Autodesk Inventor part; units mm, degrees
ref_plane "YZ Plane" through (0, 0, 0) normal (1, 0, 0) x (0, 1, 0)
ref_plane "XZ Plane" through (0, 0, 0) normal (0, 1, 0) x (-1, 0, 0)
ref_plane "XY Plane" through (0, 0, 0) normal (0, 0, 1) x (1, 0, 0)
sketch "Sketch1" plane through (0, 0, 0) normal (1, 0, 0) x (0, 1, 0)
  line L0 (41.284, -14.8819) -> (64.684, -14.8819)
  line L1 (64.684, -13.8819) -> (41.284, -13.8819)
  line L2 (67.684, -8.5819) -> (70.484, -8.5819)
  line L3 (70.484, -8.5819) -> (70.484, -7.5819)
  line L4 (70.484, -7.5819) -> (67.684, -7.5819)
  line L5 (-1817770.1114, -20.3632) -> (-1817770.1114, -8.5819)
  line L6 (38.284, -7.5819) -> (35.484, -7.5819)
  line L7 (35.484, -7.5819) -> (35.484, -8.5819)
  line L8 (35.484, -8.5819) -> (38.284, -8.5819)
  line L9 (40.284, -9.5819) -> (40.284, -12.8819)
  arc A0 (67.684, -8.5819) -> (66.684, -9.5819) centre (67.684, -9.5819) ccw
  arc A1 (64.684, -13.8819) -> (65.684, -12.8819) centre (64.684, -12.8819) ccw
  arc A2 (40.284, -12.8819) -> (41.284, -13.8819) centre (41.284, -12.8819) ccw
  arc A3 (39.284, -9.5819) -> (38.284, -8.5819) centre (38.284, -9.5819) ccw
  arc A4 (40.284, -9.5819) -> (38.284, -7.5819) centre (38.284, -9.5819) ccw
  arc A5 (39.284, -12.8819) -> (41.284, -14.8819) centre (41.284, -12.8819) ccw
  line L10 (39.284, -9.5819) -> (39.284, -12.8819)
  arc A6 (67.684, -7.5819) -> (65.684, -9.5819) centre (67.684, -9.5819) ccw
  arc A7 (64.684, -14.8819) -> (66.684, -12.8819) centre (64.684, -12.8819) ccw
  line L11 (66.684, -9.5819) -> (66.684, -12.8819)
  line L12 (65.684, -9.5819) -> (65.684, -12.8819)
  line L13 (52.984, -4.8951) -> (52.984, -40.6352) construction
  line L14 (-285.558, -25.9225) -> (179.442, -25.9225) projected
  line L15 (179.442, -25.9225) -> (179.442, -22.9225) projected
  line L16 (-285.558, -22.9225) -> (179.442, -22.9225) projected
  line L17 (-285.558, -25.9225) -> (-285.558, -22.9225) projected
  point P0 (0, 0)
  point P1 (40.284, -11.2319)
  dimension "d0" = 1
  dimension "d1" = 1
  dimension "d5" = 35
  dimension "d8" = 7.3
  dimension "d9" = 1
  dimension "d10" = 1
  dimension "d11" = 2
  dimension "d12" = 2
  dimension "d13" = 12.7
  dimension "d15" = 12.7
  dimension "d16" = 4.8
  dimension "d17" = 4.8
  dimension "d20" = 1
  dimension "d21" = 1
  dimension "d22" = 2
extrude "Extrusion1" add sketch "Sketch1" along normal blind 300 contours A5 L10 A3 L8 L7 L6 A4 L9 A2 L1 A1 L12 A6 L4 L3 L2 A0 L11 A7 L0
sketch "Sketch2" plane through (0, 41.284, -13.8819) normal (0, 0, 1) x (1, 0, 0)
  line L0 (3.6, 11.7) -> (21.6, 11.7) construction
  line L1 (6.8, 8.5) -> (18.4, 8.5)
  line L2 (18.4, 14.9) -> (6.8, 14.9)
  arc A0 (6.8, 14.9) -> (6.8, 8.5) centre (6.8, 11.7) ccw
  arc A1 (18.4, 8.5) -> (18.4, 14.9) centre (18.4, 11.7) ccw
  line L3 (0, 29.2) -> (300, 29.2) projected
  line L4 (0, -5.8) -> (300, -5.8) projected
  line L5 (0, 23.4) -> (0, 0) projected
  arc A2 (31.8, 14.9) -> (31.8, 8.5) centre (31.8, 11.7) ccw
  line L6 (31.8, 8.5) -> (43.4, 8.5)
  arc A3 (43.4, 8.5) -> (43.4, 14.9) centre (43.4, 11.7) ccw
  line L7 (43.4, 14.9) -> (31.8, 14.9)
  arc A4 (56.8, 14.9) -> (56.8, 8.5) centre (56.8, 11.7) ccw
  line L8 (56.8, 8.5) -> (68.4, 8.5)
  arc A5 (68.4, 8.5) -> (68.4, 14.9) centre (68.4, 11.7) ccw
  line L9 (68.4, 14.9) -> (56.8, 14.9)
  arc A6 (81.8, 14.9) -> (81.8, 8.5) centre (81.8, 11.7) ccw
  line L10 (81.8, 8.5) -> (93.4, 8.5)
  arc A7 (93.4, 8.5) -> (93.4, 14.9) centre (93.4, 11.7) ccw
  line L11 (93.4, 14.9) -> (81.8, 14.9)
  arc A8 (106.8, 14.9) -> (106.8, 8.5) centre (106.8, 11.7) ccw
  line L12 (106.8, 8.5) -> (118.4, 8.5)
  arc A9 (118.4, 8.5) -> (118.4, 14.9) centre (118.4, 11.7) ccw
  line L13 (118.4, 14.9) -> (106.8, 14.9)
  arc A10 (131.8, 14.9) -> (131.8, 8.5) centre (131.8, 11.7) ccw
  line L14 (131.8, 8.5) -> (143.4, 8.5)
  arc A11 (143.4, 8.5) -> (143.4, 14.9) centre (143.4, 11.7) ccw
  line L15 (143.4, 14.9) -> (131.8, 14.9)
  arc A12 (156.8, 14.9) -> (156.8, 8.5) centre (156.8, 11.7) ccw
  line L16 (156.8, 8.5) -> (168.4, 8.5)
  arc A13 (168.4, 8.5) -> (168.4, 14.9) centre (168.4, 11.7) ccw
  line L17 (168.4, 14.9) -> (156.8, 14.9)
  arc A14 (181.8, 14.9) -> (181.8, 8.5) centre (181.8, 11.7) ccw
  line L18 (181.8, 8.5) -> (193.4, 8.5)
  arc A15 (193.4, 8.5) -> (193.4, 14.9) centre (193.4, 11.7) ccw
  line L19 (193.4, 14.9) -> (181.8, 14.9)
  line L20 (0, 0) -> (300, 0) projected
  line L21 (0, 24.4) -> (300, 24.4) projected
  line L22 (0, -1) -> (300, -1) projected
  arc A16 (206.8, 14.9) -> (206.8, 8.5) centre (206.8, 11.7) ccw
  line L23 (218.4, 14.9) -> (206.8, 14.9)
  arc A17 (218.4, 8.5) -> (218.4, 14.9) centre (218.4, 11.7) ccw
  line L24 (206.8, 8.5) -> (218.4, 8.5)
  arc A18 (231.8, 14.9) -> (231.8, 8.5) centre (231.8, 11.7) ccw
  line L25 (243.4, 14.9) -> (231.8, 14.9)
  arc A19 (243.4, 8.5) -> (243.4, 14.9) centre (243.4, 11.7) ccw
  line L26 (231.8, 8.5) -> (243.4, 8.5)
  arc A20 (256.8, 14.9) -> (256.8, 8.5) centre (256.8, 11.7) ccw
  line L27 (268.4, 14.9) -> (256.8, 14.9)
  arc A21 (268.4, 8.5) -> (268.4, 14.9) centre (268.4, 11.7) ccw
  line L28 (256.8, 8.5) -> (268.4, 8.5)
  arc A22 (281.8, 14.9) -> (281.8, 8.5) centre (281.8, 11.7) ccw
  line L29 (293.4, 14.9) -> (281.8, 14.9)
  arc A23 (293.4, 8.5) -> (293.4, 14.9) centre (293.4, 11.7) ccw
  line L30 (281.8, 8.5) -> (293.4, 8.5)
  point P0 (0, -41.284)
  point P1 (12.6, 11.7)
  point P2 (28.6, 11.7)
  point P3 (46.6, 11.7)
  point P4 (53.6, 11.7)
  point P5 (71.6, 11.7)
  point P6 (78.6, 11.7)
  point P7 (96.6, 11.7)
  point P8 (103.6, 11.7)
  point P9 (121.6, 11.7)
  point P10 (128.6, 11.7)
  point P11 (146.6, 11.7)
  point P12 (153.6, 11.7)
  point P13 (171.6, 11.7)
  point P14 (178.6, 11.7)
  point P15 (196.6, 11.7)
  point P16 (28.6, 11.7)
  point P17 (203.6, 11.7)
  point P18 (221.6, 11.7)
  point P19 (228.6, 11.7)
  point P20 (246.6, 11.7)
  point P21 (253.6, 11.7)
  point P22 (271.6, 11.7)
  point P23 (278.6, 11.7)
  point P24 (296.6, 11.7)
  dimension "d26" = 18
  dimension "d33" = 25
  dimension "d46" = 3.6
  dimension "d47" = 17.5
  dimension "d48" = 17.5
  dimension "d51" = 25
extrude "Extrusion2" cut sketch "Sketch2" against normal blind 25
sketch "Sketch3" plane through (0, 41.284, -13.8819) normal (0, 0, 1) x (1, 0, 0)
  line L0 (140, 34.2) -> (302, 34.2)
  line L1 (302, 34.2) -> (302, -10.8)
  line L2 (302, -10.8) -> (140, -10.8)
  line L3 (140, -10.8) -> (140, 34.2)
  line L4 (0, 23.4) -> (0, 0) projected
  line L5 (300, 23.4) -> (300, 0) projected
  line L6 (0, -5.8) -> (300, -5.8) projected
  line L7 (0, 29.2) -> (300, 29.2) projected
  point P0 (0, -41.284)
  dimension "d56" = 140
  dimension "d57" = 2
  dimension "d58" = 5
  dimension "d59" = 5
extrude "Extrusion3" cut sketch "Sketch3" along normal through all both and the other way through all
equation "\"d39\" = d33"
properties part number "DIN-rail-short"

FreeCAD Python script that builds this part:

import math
import FreeCAD as App
import Part
import Sketcher
from FreeCAD import Vector
Q = App.Units.Quantity

doc = App.newDocument("Part")
params = doc.addObject("Spreadsheet::Sheet", "Params")
for row, (alias, value) in enumerate([
    ("sketch1_radius", "2 mm"),
    ("sketch1_radius2", "1 mm"),
    ("sketch1_width", "23.4 mm"),
    ("sketch1_height", "3.3 mm"),
    ("pad1_length", "300 mm"),
    ("sketch2_radius", "3.2 mm"),
    ("sketch2_width", "11.6 mm"),
    ("pocket1_length", "25 mm"),
    ("sketch3_width", "162 mm"),
    ("sketch3_height", "45 mm"),
], start=1):
    params.set(f"A{row}", alias)
    params.set(f"B{row}", "=" + value)
    params.setAlias(f"B{row}", alias)

body = doc.addObject("PartDesign::Body", "Body")

# Sketch on YZ plane
sketch1 = body.newObject("Sketcher::SketchObject", "Sketch")
sketch1.AttachmentSupport = (doc.getObject("YZ_Plane"), [""])
sketch1.MapMode = "FlatFace"
sketch1.addGeometry([
    Part.ArcOfCircle(Part.Circle(Vector(41.3, -12.9, 0), Vector(0, 0, 1), 2), math.radians(180), math.radians(270)),  # 0
    Part.LineSegment(Vector(41.3, -14.9, 0), Vector(64.7, -14.9, 0)),  # 1
    Part.ArcOfCircle(Part.Circle(Vector(64.7, -12.9, 0), Vector(0, 0, 1), 2), math.radians(-90), math.radians(0)),  # 2
    Part.LineSegment(Vector(66.7, -12.9, 0), Vector(66.7, -9.6, 0)),  # 3
    Part.ArcOfCircle(Part.Circle(Vector(67.7, -9.6, 0), Vector(0, 0, 1), 1), math.radians(90), math.radians(180)),  # 4
    Part.LineSegment(Vector(67.7, -8.6, 0), Vector(70.5, -8.6, 0)),  # 5
    Part.LineSegment(Vector(70.5, -8.6, 0), Vector(70.5, -7.6, 0)),  # 6
    Part.LineSegment(Vector(70.5, -7.6, 0), Vector(67.7, -7.6, 0)),  # 7
    Part.ArcOfCircle(Part.Circle(Vector(67.7, -9.6, 0), Vector(0, 0, 1), 2), math.radians(90), math.radians(180)),  # 8
    Part.LineSegment(Vector(65.7, -9.6, 0), Vector(65.7, -12.9, 0)),  # 9
    Part.ArcOfCircle(Part.Circle(Vector(64.7, -12.9, 0), Vector(0, 0, 1), 1), math.radians(-90), math.radians(0)),  # 10
    Part.LineSegment(Vector(64.7, -13.9, 0), Vector(41.3, -13.9, 0)),  # 11
    Part.ArcOfCircle(Part.Circle(Vector(41.3, -12.9, 0), Vector(0, 0, 1), 1), math.radians(180), math.radians(270)),  # 12
    Part.LineSegment(Vector(40.3, -12.9, 0), Vector(40.3, -9.6, 0)),  # 13
    Part.ArcOfCircle(Part.Circle(Vector(38.3, -9.6, 0), Vector(0, 0, 1), 2), math.radians(0), math.radians(90)),  # 14
    Part.LineSegment(Vector(38.3, -7.6, 0), Vector(35.5, -7.6, 0)),  # 15
    Part.LineSegment(Vector(35.5, -7.6, 0), Vector(35.5, -8.6, 0)),  # 16
    Part.LineSegment(Vector(35.5, -8.6, 0), Vector(38.3, -8.6, 0)),  # 17
    Part.ArcOfCircle(Part.Circle(Vector(38.3, -9.6, 0), Vector(0, 0, 1), 1), math.radians(0), math.radians(90)),  # 18
    Part.LineSegment(Vector(39.3, -9.6, 0), Vector(39.3, -12.9, 0)),  # 19
], False)
sketch1.addConstraint([
    Sketcher.Constraint("Tangent", 0, 2, 1, 1),
    Sketcher.Constraint("Tangent", 1, 2, 2, 1),
    Sketcher.Constraint("Tangent", 2, 2, 3, 1),
    Sketcher.Constraint("Tangent", 3, 2, 4, 2),
    Sketcher.Constraint("Tangent", 4, 1, 5, 1),
    Sketcher.Constraint("Coincident", 5, 2, 6, 1),
    Sketcher.Constraint("Coincident", 6, 2, 7, 1),
    Sketcher.Constraint("Tangent", 7, 2, 8, 1),
    Sketcher.Constraint("Tangent", 8, 2, 9, 1),
    Sketcher.Constraint("Tangent", 9, 2, 10, 2),
    Sketcher.Constraint("Tangent", 10, 1, 11, 1),
    Sketcher.Constraint("Tangent", 11, 2, 12, 2),
    Sketcher.Constraint("Tangent", 12, 1, 13, 1),
    Sketcher.Constraint("Tangent", 13, 2, 14, 1),
    Sketcher.Constraint("Tangent", 14, 2, 15, 1),
    Sketcher.Constraint("Coincident", 15, 2, 16, 1),
    Sketcher.Constraint("Coincident", 16, 2, 17, 1),
    Sketcher.Constraint("Tangent", 17, 2, 18, 2),
    Sketcher.Constraint("Tangent", 18, 1, 19, 1),
    Sketcher.Constraint("Tangent", 19, 2, 0, 1),
    Sketcher.Constraint("Horizontal", 1),
    Sketcher.Constraint("Vertical", 3),
    Sketcher.Constraint("Horizontal", 5),
    Sketcher.Constraint("Vertical", 6),
    Sketcher.Constraint("Horizontal", 7),
    Sketcher.Constraint("Vertical", 9),
    Sketcher.Constraint("Horizontal", 11),
    Sketcher.Constraint("Vertical", 13),
    Sketcher.Constraint("Horizontal", 15),
    Sketcher.Constraint("Vertical", 16),
    Sketcher.Constraint("Horizontal", 17),
    Sketcher.Constraint("Vertical", 19),
    Sketcher.Constraint("Coincident", 8, 3, 4, 3),
    Sketcher.Constraint("Coincident", 10, 3, 2, 3),
    Sketcher.Constraint("Coincident", 12, 3, 0, 3),
    Sketcher.Constraint("Coincident", 18, 3, 14, 3),
    Sketcher.Constraint("Equal", 0, 2),
    Sketcher.Constraint("Equal", 2, 8),
    Sketcher.Constraint("Equal", 8, 14),
    Sketcher.Constraint("Horizontal", 8, 3, 14, 3),
    Sketcher.Constraint("Equal", 7, 15),
    Sketcher.Constraint("Radius", 0, Q("2 mm")),
    Sketcher.Constraint("Radius", 4, Q("1 mm")),
    Sketcher.Constraint("DistanceX", 15, 2, 13, 2, Q("4.8 mm")),
    Sketcher.Constraint("DistanceX", 1, 1, 1, 2, Q("23.4 mm")),
    Sketcher.Constraint("DistanceY", 3, 1, 3, 2, Q("3.3 mm")),
    Sketcher.Constraint("DistanceX", -1, 1, 0, 3, Q("41.284 mm")),
    Sketcher.Constraint("DistanceY", 0, 3, -1, 1, Q("12.882 mm")),
])
sketch1.setExpression("Constraints[41]", "Params.sketch1_radius")
sketch1.setExpression("Constraints[42]", "Params.sketch1_radius2")
sketch1.setExpression("Constraints[44]", "Params.sketch1_width")
sketch1.setExpression("Constraints[45]", "Params.sketch1_height")
pad1 = body.newObject("PartDesign::Pad", "Pad")
pad1.Profile = sketch1
pad1.setExpression("Length", "Params.pad1_length")

# Sketch on XY plane
sketch2 = body.newObject("Sketcher::SketchObject", "Sketch001")
sketch2.AttachmentSupport = (doc.getObject("XY_Plane"), [""])
sketch2.MapMode = "FlatFace"
sketch2.AttachmentOffset = App.Placement(Vector(0, 0, -13.8819), App.Rotation())
sketch2.addGeometry([
    Part.ArcOfCircle(Part.Circle(Vector(6.8, 53, 0), Vector(0, 0, 1), 3.2), math.radians(90), math.radians(270)),  # 0
    Part.LineSegment(Vector(6.8, 49.8, 0), Vector(18.4, 49.8, 0)),  # 1
    Part.ArcOfCircle(Part.Circle(Vector(18.4, 53, 0), Vector(0, 0, 1), 3.2), math.radians(-90), math.radians(90)),  # 2
    Part.LineSegment(Vector(18.4, 56.2, 0), Vector(6.8, 56.2, 0)),  # 3
    Part.LineSegment(Vector(43.4, 56.2, 0), Vector(31.8, 56.2, 0)),  # 4
    Part.ArcOfCircle(Part.Circle(Vector(31.8, 53, 0), Vector(0, 0, 1), 3.2), math.radians(90), math.radians(270)),  # 5
    Part.LineSegment(Vector(31.8, 49.8, 0), Vector(43.4, 49.8, 0)),  # 6
    Part.ArcOfCircle(Part.Circle(Vector(43.4, 53, 0), Vector(0, 0, 1), 3.2), math.radians(-90), math.radians(90)),  # 7
    Part.LineSegment(Vector(68.4, 56.2, 0), Vector(56.8, 56.2, 0)),  # 8
    Part.ArcOfCircle(Part.Circle(Vector(56.8, 53, 0), Vector(0, 0, 1), 3.2), math.radians(90), math.radians(270)),  # 9
    Part.LineSegment(Vector(56.8, 49.8, 0), Vector(68.4, 49.8, 0)),  # 10
    Part.ArcOfCircle(Part.Circle(Vector(68.4, 53, 0), Vector(0, 0, 1), 3.2), math.radians(-90), math.radians(90)),  # 11
    Part.LineSegment(Vector(93.4, 56.2, 0), Vector(81.8, 56.2, 0)),  # 12
    Part.ArcOfCircle(Part.Circle(Vector(81.8, 53, 0), Vector(0, 0, 1), 3.2), math.radians(90), math.radians(270)),  # 13
    Part.LineSegment(Vector(81.8, 49.8, 0), Vector(93.4, 49.8, 0)),  # 14
    Part.ArcOfCircle(Part.Circle(Vector(93.4, 53, 0), Vector(0, 0, 1), 3.2), math.radians(-90), math.radians(90)),  # 15
    Part.LineSegment(Vector(118.4, 56.2, 0), Vector(106.8, 56.2, 0)),  # 16
    Part.ArcOfCircle(Part.Circle(Vector(106.8, 53, 0), Vector(0, 0, 1), 3.2), math.radians(90), math.radians(270)),  # 17
    Part.LineSegment(Vector(106.8, 49.8, 0), Vector(118.4, 49.8, 0)),  # 18
    Part.ArcOfCircle(Part.Circle(Vector(118.4, 53, 0), Vector(0, 0, 1), 3.2), math.radians(-90), math.radians(90)),  # 19
    Part.LineSegment(Vector(143.4, 56.2, 0), Vector(131.8, 56.2, 0)),  # 20
    Part.ArcOfCircle(Part.Circle(Vector(131.8, 53, 0), Vector(0, 0, 1), 3.2), math.radians(90), math.radians(270)),  # 21
    Part.LineSegment(Vector(131.8, 49.8, 0), Vector(143.4, 49.8, 0)),  # 22
    Part.ArcOfCircle(Part.Circle(Vector(143.4, 53, 0), Vector(0, 0, 1), 3.2), math.radians(-90), math.radians(90)),  # 23
    Part.LineSegment(Vector(168.4, 56.2, 0), Vector(156.8, 56.2, 0)),  # 24
    Part.ArcOfCircle(Part.Circle(Vector(156.8, 53, 0), Vector(0, 0, 1), 3.2), math.radians(90), math.radians(270)),  # 25
    Part.LineSegment(Vector(156.8, 49.8, 0), Vector(168.4, 49.8, 0)),  # 26
    Part.ArcOfCircle(Part.Circle(Vector(168.4, 53, 0), Vector(0, 0, 1), 3.2), math.radians(-90), math.radians(90)),  # 27
    Part.LineSegment(Vector(193.4, 56.2, 0), Vector(181.8, 56.2, 0)),  # 28
    Part.ArcOfCircle(Part.Circle(Vector(181.8, 53, 0), Vector(0, 0, 1), 3.2), math.radians(90), math.radians(270)),  # 29
    Part.LineSegment(Vector(181.8, 49.8, 0), Vector(193.4, 49.8, 0)),  # 30
    Part.ArcOfCircle(Part.Circle(Vector(193.4, 53, 0), Vector(0, 0, 1), 3.2), math.radians(-90), math.radians(90)),  # 31
    Part.LineSegment(Vector(218.4, 56.2, 0), Vector(206.8, 56.2, 0)),  # 32
    Part.ArcOfCircle(Part.Circle(Vector(206.8, 53, 0), Vector(0, 0, 1), 3.2), math.radians(90), math.radians(270)),  # 33
    Part.LineSegment(Vector(206.8, 49.8, 0), Vector(218.4, 49.8, 0)),  # 34
    Part.ArcOfCircle(Part.Circle(Vector(218.4, 53, 0), Vector(0, 0, 1), 3.2), math.radians(-90), math.radians(90)),  # 35
    Part.LineSegment(Vector(243.4, 56.2, 0), Vector(231.8, 56.2, 0)),  # 36
    Part.ArcOfCircle(Part.Circle(Vector(231.8, 53, 0), Vector(0, 0, 1), 3.2), math.radians(90), math.radians(270)),  # 37
    Part.LineSegment(Vector(231.8, 49.8, 0), Vector(243.4, 49.8, 0)),  # 38
    Part.ArcOfCircle(Part.Circle(Vector(243.4, 53, 0), Vector(0, 0, 1), 3.2), math.radians(-90), math.radians(90)),  # 39
    Part.LineSegment(Vector(268.4, 56.2, 0), Vector(256.8, 56.2, 0)),  # 40
    Part.ArcOfCircle(Part.Circle(Vector(256.8, 53, 0), Vector(0, 0, 1), 3.2), math.radians(90), math.radians(270)),  # 41
    Part.LineSegment(Vector(256.8, 49.8, 0), Vector(268.4, 49.8, 0)),  # 42
    Part.ArcOfCircle(Part.Circle(Vector(268.4, 53, 0), Vector(0, 0, 1), 3.2), math.radians(-90), math.radians(90)),  # 43
    Part.LineSegment(Vector(293.4, 56.2, 0), Vector(281.8, 56.2, 0)),  # 44
    Part.ArcOfCircle(Part.Circle(Vector(281.8, 53, 0), Vector(0, 0, 1), 3.2), math.radians(90), math.radians(270)),  # 45
    Part.LineSegment(Vector(281.8, 49.8, 0), Vector(293.4, 49.8, 0)),  # 46
    Part.ArcOfCircle(Part.Circle(Vector(293.4, 53, 0), Vector(0, 0, 1), 3.2), math.radians(-90), math.radians(90)),  # 47
], False)
sketch2.addConstraint([
    Sketcher.Constraint("Tangent", 0, 2, 1, 1),
    Sketcher.Constraint("Tangent", 1, 2, 2, 1),
    Sketcher.Constraint("Tangent", 2, 2, 3, 1),
    Sketcher.Constraint("Tangent", 3, 2, 0, 1),
    Sketcher.Constraint("Tangent", 4, 2, 5, 1),
    Sketcher.Constraint("Tangent", 5, 2, 6, 1),
    Sketcher.Constraint("Tangent", 6, 2, 7, 1),
    Sketcher.Constraint("Tangent", 7, 2, 4, 1),
    Sketcher.Constraint("Tangent", 8, 2, 9, 1),
    Sketcher.Constraint("Tangent", 9, 2, 10, 1),
    Sketcher.Constraint("Tangent", 10, 2, 11, 1),
    Sketcher.Constraint("Tangent", 11, 2, 8, 1),
    Sketcher.Constraint("Tangent", 12, 2, 13, 1),
    Sketcher.Constraint("Tangent", 13, 2, 14, 1),
    Sketcher.Constraint("Tangent", 14, 2, 15, 1),
    Sketcher.Constraint("Tangent", 15, 2, 12, 1),
    Sketcher.Constraint("Tangent", 16, 2, 17, 1),
    Sketcher.Constraint("Tangent", 17, 2, 18, 1),
    Sketcher.Constraint("Tangent", 18, 2, 19, 1),
    Sketcher.Constraint("Tangent", 19, 2, 16, 1),
    Sketcher.Constraint("Tangent", 20, 2, 21, 1),
    Sketcher.Constraint("Tangent", 21, 2, 22, 1),
    Sketcher.Constraint("Tangent", 22, 2, 23, 1),
    Sketcher.Constraint("Tangent", 23, 2, 20, 1),
    Sketcher.Constraint("Tangent", 24, 2, 25, 1),
    Sketcher.Constraint("Tangent", 25, 2, 26, 1),
    Sketcher.Constraint("Tangent", 26, 2, 27, 1),
    Sketcher.Constraint("Tangent", 27, 2, 24, 1),
    Sketcher.Constraint("Tangent", 28, 2, 29, 1),
    Sketcher.Constraint("Tangent", 29, 2, 30, 1),
    Sketcher.Constraint("Tangent", 30, 2, 31, 1),
    Sketcher.Constraint("Tangent", 31, 2, 28, 1),
    Sketcher.Constraint("Tangent", 32, 2, 33, 1),
    Sketcher.Constraint("Tangent", 33, 2, 34, 1),
    Sketcher.Constraint("Tangent", 34, 2, 35, 1),
    Sketcher.Constraint("Tangent", 35, 2, 32, 1),
    Sketcher.Constraint("Tangent", 36, 2, 37, 1),
    Sketcher.Constraint("Tangent", 37, 2, 38, 1),
    Sketcher.Constraint("Tangent", 38, 2, 39, 1),
    Sketcher.Constraint("Tangent", 39, 2, 36, 1),
    Sketcher.Constraint("Tangent", 40, 2, 41, 1),
    Sketcher.Constraint("Tangent", 41, 2, 42, 1),
    Sketcher.Constraint("Tangent", 42, 2, 43, 1),
    Sketcher.Constraint("Tangent", 43, 2, 40, 1),
    Sketcher.Constraint("Tangent", 44, 2, 45, 1),
    Sketcher.Constraint("Tangent", 45, 2, 46, 1),
    Sketcher.Constraint("Tangent", 46, 2, 47, 1),
    Sketcher.Constraint("Tangent", 47, 2, 44, 1),
    Sketcher.Constraint("Horizontal", 1),
    Sketcher.Constraint("Horizontal", 3),
    Sketcher.Constraint("Horizontal", 4),
    Sketcher.Constraint("Horizontal", 6),
    Sketcher.Constraint("Horizontal", 8),
    Sketcher.Constraint("Horizontal", 10),
    Sketcher.Constraint("Horizontal", 12),
    Sketcher.Constraint("Horizontal", 14),
    Sketcher.Constraint("Horizontal", 16),
    Sketcher.Constraint("Horizontal", 18),
    Sketcher.Constraint("Horizontal", 20),
    Sketcher.Constraint("Horizontal", 22),
    Sketcher.Constraint("Horizontal", 24),
    Sketcher.Constraint("Horizontal", 26),
    Sketcher.Constraint("Horizontal", 28),
    Sketcher.Constraint("Horizontal", 30),
    Sketcher.Constraint("Horizontal", 32),
    Sketcher.Constraint("Horizontal", 34),
    Sketcher.Constraint("Horizontal", 36),
    Sketcher.Constraint("Horizontal", 38),
    Sketcher.Constraint("Horizontal", 40),
    Sketcher.Constraint("Horizontal", 42),
    Sketcher.Constraint("Horizontal", 44),
    Sketcher.Constraint("Horizontal", 46),
    Sketcher.Constraint("Equal", 2, 5),
    Sketcher.Constraint("Equal", 7, 9),
    Sketcher.Constraint("Equal", 11, 13),
    Sketcher.Constraint("Equal", 15, 17),
    Sketcher.Constraint("Equal", 19, 21),
    Sketcher.Constraint("Equal", 23, 25),
    Sketcher.Constraint("Equal", 27, 29),
    Sketcher.Constraint("Equal", 31, 33),
    Sketcher.Constraint("Equal", 35, 37),
    Sketcher.Constraint("Equal", 39, 41),
    Sketcher.Constraint("Equal", 43, 45),
    Sketcher.Constraint("Horizontal", 2, 3, 5, 3),
    Sketcher.Constraint("Horizontal", 7, 3, 9, 3),
    Sketcher.Constraint("Horizontal", 11, 3, 13, 3),
    Sketcher.Constraint("Horizontal", 15, 3, 17, 3),
    Sketcher.Constraint("Horizontal", 19, 3, 21, 3),
    Sketcher.Constraint("Horizontal", 23, 3, 25, 3),
    Sketcher.Constraint("Horizontal", 27, 3, 29, 3),
    Sketcher.Constraint("Horizontal", 31, 3, 33, 3),
    Sketcher.Constraint("Horizontal", 35, 3, 37, 3),
    Sketcher.Constraint("Horizontal", 39, 3, 41, 3),
    Sketcher.Constraint("Horizontal", 43, 3, 45, 3),
    Sketcher.Constraint("Equal", 3, 4),
    Sketcher.Constraint("Equal", 6, 8),
    Sketcher.Constraint("Equal", 10, 12),
    Sketcher.Constraint("Equal", 14, 16),
    Sketcher.Constraint("Equal", 18, 20),
    Sketcher.Constraint("Equal", 22, 24),
    Sketcher.Constraint("Equal", 26, 28),
    Sketcher.Constraint("Equal", 30, 32),
    Sketcher.Constraint("Equal", 34, 36),
    Sketcher.Constraint("Equal", 38, 40),
    Sketcher.Constraint("Equal", 42, 44),
    Sketcher.Constraint("Radius", 0, Q("3.2 mm")),
    Sketcher.Constraint("DistanceX", 1, 1, 1, 2, Q("11.6 mm")),
    Sketcher.Constraint("DistanceX", -1, 1, 0, 3, Q("6.8 mm")),
    Sketcher.Constraint("DistanceX", -1, 1, 5, 3, Q("31.8 mm")),
    Sketcher.Constraint("DistanceX", -1, 1, 9, 3, Q("56.8 mm")),
    Sketcher.Constraint("DistanceX", -1, 1, 13, 3, Q("81.8 mm")),
    Sketcher.Constraint("DistanceX", -1, 1, 17, 3, Q("106.8 mm")),
    Sketcher.Constraint("DistanceX", -1, 1, 21, 3, Q("131.8 mm")),
    Sketcher.Constraint("DistanceX", -1, 1, 25, 3, Q("156.8 mm")),
    Sketcher.Constraint("DistanceX", -1, 1, 29, 3, Q("181.8 mm")),
    Sketcher.Constraint("DistanceX", -1, 1, 33, 3, Q("206.8 mm")),
    Sketcher.Constraint("DistanceX", -1, 1, 37, 3, Q("231.8 mm")),
    Sketcher.Constraint("DistanceX", -1, 1, 41, 3, Q("256.8 mm")),
    Sketcher.Constraint("DistanceX", -1, 1, 45, 3, Q("281.8 mm")),
    Sketcher.Constraint("DistanceY", -1, 1, 0, 3, Q("52.984 mm")),
])
sketch2.setExpression("Constraints[105]", "Params.sketch2_radius")
sketch2.setExpression("Constraints[106]", "Params.sketch2_width")
pocket1 = body.newObject("PartDesign::Pocket", "Pocket")
pocket1.Profile = sketch2
pocket1.setExpression("Length", "Params.pocket1_length")

# Sketch on XY plane
sketch3 = body.newObject("Sketcher::SketchObject", "Sketch002")
sketch3.AttachmentSupport = (doc.getObject("XY_Plane"), [""])
sketch3.MapMode = "FlatFace"
sketch3.AttachmentOffset = App.Placement(Vector(0, 0, -13.8819), App.Rotation())
sketch3.addGeometry([
    Part.LineSegment(Vector(302, 75, 0), Vector(140, 75, 0)),
    Part.LineSegment(Vector(140, 75, 0), Vector(140, 30, 0)),
    Part.LineSegment(Vector(140, 30, 0), Vector(302, 30, 0)),
    Part.LineSegment(Vector(302, 30, 0), Vector(302, 75, 0)),
], False)
sketch3.addConstraint([
    Sketcher.Constraint("Coincident", 0, 2, 1, 1),
    Sketcher.Constraint("Coincident", 1, 2, 2, 1),
    Sketcher.Constraint("Coincident", 2, 2, 3, 1),
    Sketcher.Constraint("Coincident", 3, 2, 0, 1),
    Sketcher.Constraint("Horizontal", 0),
    Sketcher.Constraint("Vertical", 1),
    Sketcher.Constraint("Horizontal", 2),
    Sketcher.Constraint("Vertical", 3),
    Sketcher.Constraint("DistanceX", -1, 1, 0, 2, Q("140 mm")),
    Sketcher.Constraint("DistanceX", 0, 2, 0, 1, Q("162 mm")),
    Sketcher.Constraint("DistanceY", 1, 2, 1, 1, Q("45 mm")),
    Sketcher.Constraint("DistanceY", -1, 1, 0, 2, Q("75.484 mm")),
])
sketch3.setExpression("Constraints[9]", "Params.sketch3_width")
sketch3.setExpression("Constraints[10]", "Params.sketch3_height")
pocket2 = body.newObject("PartDesign::Pocket", "Pocket001")
pocket2.Profile = sketch3
pocket2.Type = "ThroughAll"
pocket2.Midplane = True

doc.recompute()
